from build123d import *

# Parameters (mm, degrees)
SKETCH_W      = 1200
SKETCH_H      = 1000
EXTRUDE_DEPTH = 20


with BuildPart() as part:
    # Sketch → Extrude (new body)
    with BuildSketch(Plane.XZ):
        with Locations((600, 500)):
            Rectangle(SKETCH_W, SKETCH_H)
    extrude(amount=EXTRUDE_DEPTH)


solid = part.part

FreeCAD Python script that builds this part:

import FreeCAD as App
import Part
import Sketcher
from FreeCAD import Vector
Q = App.Units.Quantity

doc = App.newDocument("Part")
body = doc.addObject("PartDesign::Body", "Body")

# Sketch on XZ plane
sketch1 = body.newObject("Sketcher::SketchObject", "Sketch")
sketch1.AttachmentSupport = (doc.getObject("XZ_Plane"), [""])
sketch1.MapMode = "FlatFace"
sketch1.addGeometry([
    Part.LineSegment(Vector(0, 1000, 0), Vector(0, 0, 0)),
    Part.LineSegment(Vector(0, 0, 0), Vector(1200, 0, 0)),
    Part.LineSegment(Vector(1200, 0, 0), Vector(1200, 1000, 0)),
    Part.LineSegment(Vector(1200, 1000, 0), Vector(0, 1000, 0)),
], False)
sketch1.addConstraint([
    Sketcher.Constraint("Coincident", 0, 2, 1, 1),
    Sketcher.Constraint("Coincident", 1, 2, 2, 1),
    Sketcher.Constraint("Coincident", 2, 2, 3, 1),
    Sketcher.Constraint("Coincident", 3, 2, 0, 1),
    Sketcher.Constraint("Vertical", 0),
    Sketcher.Constraint("Horizontal", 1),
    Sketcher.Constraint("Vertical", 2),
    Sketcher.Constraint("Horizontal", 3),
    Sketcher.Constraint("Coincident", 0, 2, -1, 1),
    Sketcher.Constraint("DistanceX", 1, 1, 1, 2, Q("1200 mm")),
    Sketcher.Constraint("DistanceY", 0, 2, 0, 1, Q("1000 mm")),
])
pad1 = body.newObject("PartDesign::Pad", "Pad")
pad1.Profile = sketch1
pad1.Length = 20

doc.recompute()
